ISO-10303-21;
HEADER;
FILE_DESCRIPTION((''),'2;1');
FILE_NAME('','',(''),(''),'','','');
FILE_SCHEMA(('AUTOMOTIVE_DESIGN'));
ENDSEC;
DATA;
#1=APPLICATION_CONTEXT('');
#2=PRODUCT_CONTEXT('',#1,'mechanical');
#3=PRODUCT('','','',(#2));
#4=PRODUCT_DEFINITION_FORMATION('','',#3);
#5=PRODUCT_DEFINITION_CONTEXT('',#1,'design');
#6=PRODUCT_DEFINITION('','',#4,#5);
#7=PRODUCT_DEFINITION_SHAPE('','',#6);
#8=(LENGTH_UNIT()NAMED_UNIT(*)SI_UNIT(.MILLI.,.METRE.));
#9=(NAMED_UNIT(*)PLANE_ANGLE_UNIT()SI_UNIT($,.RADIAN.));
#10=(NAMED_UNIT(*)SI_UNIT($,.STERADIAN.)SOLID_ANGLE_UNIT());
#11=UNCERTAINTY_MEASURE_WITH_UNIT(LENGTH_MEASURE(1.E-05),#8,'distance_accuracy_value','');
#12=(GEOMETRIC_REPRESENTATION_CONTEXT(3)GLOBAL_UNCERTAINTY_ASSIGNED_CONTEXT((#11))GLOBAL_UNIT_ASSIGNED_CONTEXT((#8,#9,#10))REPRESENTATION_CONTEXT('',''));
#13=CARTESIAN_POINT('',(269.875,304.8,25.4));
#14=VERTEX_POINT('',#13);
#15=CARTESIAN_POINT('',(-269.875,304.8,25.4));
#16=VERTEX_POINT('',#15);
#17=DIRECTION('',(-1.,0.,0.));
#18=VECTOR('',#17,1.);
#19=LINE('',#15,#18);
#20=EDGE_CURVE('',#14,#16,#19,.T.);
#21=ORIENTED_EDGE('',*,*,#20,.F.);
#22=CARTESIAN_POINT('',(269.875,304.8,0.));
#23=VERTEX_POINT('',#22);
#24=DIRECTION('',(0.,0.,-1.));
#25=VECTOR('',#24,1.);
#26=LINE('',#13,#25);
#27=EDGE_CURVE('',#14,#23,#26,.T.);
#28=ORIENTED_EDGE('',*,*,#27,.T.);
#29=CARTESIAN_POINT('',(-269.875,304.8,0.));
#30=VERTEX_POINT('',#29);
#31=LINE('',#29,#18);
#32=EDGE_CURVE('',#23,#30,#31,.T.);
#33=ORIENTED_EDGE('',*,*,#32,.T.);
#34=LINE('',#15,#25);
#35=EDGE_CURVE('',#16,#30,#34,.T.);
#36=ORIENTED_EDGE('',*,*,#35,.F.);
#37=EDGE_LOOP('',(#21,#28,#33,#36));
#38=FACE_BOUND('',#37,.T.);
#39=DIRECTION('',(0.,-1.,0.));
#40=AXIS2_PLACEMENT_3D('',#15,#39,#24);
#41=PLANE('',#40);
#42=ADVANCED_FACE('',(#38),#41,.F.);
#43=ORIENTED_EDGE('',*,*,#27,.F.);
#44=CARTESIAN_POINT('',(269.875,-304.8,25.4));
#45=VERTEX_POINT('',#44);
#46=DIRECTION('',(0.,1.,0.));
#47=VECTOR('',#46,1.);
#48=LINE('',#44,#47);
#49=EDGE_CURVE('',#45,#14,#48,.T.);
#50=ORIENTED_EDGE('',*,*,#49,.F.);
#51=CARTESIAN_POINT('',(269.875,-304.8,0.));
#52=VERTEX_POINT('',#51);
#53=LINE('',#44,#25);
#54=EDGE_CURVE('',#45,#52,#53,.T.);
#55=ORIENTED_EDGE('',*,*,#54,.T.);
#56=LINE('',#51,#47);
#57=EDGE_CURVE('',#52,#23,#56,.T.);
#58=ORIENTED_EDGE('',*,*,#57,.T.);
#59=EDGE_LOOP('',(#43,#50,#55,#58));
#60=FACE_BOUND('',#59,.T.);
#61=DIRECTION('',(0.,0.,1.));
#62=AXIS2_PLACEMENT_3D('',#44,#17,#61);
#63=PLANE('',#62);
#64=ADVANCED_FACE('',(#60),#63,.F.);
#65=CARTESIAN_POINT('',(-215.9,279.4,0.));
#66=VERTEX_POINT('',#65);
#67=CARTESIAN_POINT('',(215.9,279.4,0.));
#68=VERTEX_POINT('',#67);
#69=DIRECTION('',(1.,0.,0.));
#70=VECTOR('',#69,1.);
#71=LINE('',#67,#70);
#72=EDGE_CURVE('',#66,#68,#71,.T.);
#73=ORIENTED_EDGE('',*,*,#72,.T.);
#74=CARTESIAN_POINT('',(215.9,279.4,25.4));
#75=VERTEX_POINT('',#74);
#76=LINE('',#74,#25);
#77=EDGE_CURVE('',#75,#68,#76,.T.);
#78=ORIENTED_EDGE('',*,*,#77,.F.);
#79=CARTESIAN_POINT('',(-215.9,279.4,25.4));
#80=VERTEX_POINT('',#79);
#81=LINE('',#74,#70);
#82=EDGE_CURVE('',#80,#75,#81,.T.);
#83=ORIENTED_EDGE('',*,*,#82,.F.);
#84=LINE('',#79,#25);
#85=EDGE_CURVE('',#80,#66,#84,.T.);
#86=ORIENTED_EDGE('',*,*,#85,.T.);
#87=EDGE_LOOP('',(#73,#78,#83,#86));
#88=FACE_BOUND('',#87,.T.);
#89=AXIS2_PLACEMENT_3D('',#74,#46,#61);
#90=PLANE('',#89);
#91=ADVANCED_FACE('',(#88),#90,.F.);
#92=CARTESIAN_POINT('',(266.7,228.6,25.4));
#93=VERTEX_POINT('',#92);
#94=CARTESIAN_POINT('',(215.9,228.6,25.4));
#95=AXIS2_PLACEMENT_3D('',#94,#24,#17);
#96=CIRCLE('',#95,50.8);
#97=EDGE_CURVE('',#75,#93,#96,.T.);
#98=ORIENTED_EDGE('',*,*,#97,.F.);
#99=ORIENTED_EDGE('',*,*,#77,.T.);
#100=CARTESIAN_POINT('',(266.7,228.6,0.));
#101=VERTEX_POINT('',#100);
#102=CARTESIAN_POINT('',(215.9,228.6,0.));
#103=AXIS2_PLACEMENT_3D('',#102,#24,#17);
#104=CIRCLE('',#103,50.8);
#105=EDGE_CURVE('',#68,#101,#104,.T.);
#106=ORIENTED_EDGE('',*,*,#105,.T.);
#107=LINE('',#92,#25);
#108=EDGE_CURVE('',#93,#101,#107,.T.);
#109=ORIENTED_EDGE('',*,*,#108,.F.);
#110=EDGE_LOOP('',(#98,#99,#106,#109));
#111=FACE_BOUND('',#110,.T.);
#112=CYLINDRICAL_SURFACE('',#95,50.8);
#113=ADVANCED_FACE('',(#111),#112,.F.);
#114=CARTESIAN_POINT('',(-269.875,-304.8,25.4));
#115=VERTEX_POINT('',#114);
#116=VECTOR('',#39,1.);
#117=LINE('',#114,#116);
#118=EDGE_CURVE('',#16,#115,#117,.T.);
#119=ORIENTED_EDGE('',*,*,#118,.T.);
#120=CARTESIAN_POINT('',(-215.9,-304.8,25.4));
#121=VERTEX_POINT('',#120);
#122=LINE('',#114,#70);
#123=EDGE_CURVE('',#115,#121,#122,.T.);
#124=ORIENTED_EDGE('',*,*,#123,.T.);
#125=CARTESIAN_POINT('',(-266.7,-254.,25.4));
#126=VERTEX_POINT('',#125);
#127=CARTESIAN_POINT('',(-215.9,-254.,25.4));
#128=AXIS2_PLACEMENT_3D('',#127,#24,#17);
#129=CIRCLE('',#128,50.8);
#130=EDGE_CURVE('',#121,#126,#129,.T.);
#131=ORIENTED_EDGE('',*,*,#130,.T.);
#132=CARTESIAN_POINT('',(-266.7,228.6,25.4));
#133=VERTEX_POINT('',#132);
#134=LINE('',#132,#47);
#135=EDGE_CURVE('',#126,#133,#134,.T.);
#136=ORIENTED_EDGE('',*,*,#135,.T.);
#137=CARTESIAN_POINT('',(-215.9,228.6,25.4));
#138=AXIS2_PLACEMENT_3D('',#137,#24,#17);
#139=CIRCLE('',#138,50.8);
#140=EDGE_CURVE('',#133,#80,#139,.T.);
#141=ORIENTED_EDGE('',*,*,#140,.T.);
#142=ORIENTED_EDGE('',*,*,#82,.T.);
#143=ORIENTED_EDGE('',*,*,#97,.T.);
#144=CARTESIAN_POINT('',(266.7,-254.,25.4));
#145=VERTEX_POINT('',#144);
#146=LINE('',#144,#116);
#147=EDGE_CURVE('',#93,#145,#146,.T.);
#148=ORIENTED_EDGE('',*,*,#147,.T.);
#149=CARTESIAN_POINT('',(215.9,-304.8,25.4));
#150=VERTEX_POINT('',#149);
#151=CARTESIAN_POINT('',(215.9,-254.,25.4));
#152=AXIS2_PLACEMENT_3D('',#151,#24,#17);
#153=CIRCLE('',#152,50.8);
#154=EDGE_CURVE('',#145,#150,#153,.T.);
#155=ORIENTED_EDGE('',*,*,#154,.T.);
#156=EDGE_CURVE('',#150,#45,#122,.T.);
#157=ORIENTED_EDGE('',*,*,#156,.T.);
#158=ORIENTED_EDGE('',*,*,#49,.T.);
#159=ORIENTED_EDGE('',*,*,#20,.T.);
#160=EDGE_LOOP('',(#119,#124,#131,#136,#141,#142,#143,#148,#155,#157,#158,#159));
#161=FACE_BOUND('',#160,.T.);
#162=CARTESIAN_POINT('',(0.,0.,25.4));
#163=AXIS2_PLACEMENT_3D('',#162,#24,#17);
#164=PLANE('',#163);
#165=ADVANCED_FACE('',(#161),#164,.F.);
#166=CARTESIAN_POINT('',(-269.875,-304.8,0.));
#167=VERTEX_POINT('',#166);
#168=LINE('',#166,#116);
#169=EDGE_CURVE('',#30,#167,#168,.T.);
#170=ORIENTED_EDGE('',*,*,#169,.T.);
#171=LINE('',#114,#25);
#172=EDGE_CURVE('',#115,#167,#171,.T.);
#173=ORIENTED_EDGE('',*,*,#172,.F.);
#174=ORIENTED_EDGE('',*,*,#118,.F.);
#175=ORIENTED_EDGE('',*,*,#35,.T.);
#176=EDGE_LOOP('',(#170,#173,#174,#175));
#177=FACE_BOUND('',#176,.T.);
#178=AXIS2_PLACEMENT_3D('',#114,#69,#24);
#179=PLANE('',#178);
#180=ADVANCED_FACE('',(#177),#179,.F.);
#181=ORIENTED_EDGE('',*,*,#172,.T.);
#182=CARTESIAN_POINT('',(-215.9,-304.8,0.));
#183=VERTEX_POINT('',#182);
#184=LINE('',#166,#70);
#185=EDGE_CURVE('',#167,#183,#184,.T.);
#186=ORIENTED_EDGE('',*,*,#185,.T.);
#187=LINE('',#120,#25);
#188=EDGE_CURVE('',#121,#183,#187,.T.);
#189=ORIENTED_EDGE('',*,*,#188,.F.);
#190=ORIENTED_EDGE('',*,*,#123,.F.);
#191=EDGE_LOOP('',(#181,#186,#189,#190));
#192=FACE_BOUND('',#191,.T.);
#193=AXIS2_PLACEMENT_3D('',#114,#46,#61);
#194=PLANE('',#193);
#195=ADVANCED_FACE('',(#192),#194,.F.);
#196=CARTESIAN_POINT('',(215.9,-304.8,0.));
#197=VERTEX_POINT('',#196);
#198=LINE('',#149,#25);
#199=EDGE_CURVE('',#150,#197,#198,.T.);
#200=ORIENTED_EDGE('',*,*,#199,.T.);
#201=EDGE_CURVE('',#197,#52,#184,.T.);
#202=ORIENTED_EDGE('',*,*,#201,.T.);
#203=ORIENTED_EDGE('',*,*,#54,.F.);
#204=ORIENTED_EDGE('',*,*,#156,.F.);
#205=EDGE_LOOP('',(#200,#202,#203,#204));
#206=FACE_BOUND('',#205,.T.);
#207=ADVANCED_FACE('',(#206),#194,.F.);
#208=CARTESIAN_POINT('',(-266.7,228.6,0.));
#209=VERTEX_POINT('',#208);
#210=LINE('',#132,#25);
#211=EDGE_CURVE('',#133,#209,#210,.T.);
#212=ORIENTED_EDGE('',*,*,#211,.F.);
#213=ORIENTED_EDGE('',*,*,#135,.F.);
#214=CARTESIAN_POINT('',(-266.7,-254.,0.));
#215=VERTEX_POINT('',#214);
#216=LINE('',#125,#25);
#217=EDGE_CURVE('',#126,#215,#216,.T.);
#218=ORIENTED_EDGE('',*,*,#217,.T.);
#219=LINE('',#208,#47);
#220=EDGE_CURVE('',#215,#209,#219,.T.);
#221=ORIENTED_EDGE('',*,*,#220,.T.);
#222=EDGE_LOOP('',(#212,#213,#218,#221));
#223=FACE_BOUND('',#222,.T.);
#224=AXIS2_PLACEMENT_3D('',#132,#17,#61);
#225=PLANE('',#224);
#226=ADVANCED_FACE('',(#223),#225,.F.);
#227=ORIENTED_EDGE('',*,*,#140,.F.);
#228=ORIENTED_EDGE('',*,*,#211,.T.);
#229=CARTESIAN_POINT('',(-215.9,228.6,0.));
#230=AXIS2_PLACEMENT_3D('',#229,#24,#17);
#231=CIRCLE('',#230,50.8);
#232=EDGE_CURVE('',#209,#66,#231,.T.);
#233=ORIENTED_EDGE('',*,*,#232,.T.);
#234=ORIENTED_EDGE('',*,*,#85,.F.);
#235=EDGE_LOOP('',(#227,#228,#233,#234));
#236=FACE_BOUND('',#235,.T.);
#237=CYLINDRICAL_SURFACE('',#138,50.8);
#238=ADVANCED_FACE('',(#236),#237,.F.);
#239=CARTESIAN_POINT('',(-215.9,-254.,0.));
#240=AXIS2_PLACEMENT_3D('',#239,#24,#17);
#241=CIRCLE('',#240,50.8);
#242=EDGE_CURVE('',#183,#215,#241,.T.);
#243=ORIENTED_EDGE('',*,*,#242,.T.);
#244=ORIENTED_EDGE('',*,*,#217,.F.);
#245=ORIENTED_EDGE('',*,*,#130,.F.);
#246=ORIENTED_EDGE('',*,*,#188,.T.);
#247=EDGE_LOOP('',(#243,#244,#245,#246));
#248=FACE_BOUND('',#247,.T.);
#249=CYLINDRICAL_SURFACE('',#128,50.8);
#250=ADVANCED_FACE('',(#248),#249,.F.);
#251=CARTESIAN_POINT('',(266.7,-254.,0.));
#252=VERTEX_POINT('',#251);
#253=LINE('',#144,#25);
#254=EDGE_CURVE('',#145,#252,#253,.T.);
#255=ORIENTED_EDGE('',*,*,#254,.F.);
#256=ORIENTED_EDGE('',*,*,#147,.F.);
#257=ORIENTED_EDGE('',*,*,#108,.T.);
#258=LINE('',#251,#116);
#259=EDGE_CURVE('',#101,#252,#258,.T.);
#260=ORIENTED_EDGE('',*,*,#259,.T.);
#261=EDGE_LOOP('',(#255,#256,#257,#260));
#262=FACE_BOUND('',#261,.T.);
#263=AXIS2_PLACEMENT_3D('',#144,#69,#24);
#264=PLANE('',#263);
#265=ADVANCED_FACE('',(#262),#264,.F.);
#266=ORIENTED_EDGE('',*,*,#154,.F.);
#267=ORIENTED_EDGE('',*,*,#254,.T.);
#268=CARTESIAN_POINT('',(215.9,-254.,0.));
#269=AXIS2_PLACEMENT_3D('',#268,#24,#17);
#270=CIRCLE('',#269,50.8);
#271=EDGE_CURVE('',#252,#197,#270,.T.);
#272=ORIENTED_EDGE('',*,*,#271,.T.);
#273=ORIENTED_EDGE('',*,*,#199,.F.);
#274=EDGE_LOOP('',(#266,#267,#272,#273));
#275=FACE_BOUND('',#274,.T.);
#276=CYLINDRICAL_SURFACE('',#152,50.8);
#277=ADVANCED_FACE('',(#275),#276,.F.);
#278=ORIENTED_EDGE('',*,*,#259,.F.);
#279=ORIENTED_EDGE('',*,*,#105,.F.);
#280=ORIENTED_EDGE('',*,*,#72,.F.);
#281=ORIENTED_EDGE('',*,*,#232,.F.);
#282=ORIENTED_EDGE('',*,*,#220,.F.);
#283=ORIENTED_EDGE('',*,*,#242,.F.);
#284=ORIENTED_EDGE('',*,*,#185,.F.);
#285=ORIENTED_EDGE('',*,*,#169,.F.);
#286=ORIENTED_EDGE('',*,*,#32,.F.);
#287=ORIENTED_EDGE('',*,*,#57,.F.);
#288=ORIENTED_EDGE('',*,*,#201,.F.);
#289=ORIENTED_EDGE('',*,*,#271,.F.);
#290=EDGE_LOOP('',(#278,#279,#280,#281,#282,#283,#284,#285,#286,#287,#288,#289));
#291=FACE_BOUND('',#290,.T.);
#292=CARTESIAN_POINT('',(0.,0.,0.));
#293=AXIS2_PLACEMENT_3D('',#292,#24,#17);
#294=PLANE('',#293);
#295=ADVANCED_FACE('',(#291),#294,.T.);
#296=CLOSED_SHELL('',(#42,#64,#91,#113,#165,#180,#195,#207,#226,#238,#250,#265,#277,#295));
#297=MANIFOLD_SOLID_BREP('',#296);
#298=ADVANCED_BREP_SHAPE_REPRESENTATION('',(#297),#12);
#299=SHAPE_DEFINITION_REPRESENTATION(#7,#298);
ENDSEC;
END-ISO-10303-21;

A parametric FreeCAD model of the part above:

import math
import FreeCAD as App
import Part
import Sketcher
Q = App.Units.Quantity

doc = App.newDocument("Part")
params = doc.addObject("Spreadsheet::Sheet", "Params")
for row, (alias, value) in enumerate([
    ("sketch1_height", "24 in"),
    ("sketch1_width", "21.25 in"),
    ("pad1_length", "1 in"),
    ("sketch2_radius", "2 in"),
    ("sketch2_width", "17 in"),
    ("sketch2_height", "19 in"),
], start=1):
    params.set(f"A{row}", alias)
    params.set(f"B{row}", "=" + value)
    params.setAlias(f"B{row}", alias)

body = doc.addObject("PartDesign::Body", "Body")

# Sketch on XY plane
sketch1 = doc.addObject("Sketcher::SketchObject", "Sketch")
body.addObject(sketch1)
sketch1.AttachmentSupport = (doc.XY_Plane, [""])
sketch1.MapMode = "FlatFace"
sketch1.addGeometry([
    Part.LineSegment(App.Vector(-270, 305, 0), App.Vector(-270, -305, 0)),
    Part.LineSegment(App.Vector(-270, -305, 0), App.Vector(270, -305, 0)),
    Part.LineSegment(App.Vector(270, -305, 0), App.Vector(270, 305, 0)),
    Part.LineSegment(App.Vector(270, 305, 0), App.Vector(-270, 305, 0)),
], False)
sketch1.addConstraint([
    Sketcher.Constraint("Coincident", 0, 2, 1, 1),
    Sketcher.Constraint("Coincident", 1, 2, 2, 1),
    Sketcher.Constraint("Coincident", 2, 2, 3, 1),
    Sketcher.Constraint("Coincident", 3, 2, 0, 1),
    Sketcher.Constraint("Vertical", 0),
    Sketcher.Constraint("Horizontal", 1),
    Sketcher.Constraint("Vertical", 2),
    Sketcher.Constraint("Horizontal", 3),
    Sketcher.Constraint("Symmetric", 0, 2, 2, 2, -1, 1),
    Sketcher.Constraint("DistanceY", 0, 2, 0, 1, Q("24 in")),
    Sketcher.Constraint("DistanceX", 1, 1, 1, 2, Q("21.25 in")),
])
sketch1.setExpression("Constraints[9]", "Params.sketch1_height")
sketch1.setExpression("Constraints[10]", "Params.sketch1_width")
pad1 = doc.addObject("PartDesign::Pad", "Pad")
body.addObject(pad1)
pad1.Profile = sketch1
pad1.setExpression("Length", "Params.pad1_length")

# Sketch on XY plane
sketch2 = doc.addObject("Sketcher::SketchObject", "Sketch001")
body.addObject(sketch2)
sketch2.AttachmentSupport = (doc.XY_Plane, [""])
sketch2.MapMode = "FlatFace"
sketch2.addGeometry([
    Part.LineSegment(App.Vector(267, 229, 0), App.Vector(267, -254, 0)),  # 0
    Part.ArcOfCircle(Part.Circle(App.Vector(216, -254, 0), App.Vector(0, 0, 1), 51), math.radians(-90), math.radians(0)),  # 1
    Part.LineSegment(App.Vector(216, -305, 0), App.Vector(-216, -305, 0)),  # 2
    Part.ArcOfCircle(Part.Circle(App.Vector(-216, -254, 0), App.Vector(0, 0, 1), 51), math.radians(-180), math.radians(-90)),  # 3
    Part.LineSegment(App.Vector(-267, -254, 0), App.Vector(-267, 229, 0)),  # 4
    Part.ArcOfCircle(Part.Circle(App.Vector(-216, 229, 0), App.Vector(0, 0, 1), 51), math.radians(90), math.radians(180)),  # 5
    Part.LineSegment(App.Vector(-216, 279, 0), App.Vector(216, 279, 0)),  # 6
    Part.ArcOfCircle(Part.Circle(App.Vector(216, 229, 0), App.Vector(0, 0, 1), 51), math.radians(0), math.radians(90)),  # 7
], False)
sketch2.addConstraint([
    Sketcher.Constraint("Tangent", 0, 2, 1, 2),
    Sketcher.Constraint("Tangent", 1, 1, 2, 1),
    Sketcher.Constraint("Tangent", 2, 2, 3, 2),
    Sketcher.Constraint("Tangent", 3, 1, 4, 1),
    Sketcher.Constraint("Tangent", 4, 2, 5, 2),
    Sketcher.Constraint("Tangent", 5, 1, 6, 1),
    Sketcher.Constraint("Tangent", 6, 2, 7, 2),
    Sketcher.Constraint("Tangent", 7, 1, 0, 1),
    Sketcher.Constraint("Vertical", 0),
    Sketcher.Constraint("Horizontal", 2),
    Sketcher.Constraint("Vertical", 4),
    Sketcher.Constraint("Horizontal", 6),
    Sketcher.Constraint("Equal", 1, 3),
    Sketcher.Constraint("Equal", 3, 5),
    Sketcher.Constraint("Equal", 5, 7),
    Sketcher.Constraint("Radius", 1, Q("2 in")),
    Sketcher.Constraint("DistanceX", 2, 2, 2, 1, Q("17 in")),
    Sketcher.Constraint("DistanceY", 0, 2, 0, 1, Q("19 in")),
    Sketcher.Constraint("DistanceY", 1, 3, -1, 1, Q("10 in")),
    Sketcher.Constraint("DistanceX", -1, 1, 1, 3, Q("8.5 in")),
])
sketch2.setExpression("Constraints[15]", "Params.sketch2_radius")
sketch2.setExpression("Constraints[16]", "Params.sketch2_width")
sketch2.setExpression("Constraints[17]", "Params.sketch2_height")
pocket1 = doc.addObject("PartDesign::Pocket", "Pocket")
body.addObject(pocket1)
pocket1.Profile = sketch2
pocket1.Type = "ThroughAll"
pocket1.Reversed = True

doc.recompute()
